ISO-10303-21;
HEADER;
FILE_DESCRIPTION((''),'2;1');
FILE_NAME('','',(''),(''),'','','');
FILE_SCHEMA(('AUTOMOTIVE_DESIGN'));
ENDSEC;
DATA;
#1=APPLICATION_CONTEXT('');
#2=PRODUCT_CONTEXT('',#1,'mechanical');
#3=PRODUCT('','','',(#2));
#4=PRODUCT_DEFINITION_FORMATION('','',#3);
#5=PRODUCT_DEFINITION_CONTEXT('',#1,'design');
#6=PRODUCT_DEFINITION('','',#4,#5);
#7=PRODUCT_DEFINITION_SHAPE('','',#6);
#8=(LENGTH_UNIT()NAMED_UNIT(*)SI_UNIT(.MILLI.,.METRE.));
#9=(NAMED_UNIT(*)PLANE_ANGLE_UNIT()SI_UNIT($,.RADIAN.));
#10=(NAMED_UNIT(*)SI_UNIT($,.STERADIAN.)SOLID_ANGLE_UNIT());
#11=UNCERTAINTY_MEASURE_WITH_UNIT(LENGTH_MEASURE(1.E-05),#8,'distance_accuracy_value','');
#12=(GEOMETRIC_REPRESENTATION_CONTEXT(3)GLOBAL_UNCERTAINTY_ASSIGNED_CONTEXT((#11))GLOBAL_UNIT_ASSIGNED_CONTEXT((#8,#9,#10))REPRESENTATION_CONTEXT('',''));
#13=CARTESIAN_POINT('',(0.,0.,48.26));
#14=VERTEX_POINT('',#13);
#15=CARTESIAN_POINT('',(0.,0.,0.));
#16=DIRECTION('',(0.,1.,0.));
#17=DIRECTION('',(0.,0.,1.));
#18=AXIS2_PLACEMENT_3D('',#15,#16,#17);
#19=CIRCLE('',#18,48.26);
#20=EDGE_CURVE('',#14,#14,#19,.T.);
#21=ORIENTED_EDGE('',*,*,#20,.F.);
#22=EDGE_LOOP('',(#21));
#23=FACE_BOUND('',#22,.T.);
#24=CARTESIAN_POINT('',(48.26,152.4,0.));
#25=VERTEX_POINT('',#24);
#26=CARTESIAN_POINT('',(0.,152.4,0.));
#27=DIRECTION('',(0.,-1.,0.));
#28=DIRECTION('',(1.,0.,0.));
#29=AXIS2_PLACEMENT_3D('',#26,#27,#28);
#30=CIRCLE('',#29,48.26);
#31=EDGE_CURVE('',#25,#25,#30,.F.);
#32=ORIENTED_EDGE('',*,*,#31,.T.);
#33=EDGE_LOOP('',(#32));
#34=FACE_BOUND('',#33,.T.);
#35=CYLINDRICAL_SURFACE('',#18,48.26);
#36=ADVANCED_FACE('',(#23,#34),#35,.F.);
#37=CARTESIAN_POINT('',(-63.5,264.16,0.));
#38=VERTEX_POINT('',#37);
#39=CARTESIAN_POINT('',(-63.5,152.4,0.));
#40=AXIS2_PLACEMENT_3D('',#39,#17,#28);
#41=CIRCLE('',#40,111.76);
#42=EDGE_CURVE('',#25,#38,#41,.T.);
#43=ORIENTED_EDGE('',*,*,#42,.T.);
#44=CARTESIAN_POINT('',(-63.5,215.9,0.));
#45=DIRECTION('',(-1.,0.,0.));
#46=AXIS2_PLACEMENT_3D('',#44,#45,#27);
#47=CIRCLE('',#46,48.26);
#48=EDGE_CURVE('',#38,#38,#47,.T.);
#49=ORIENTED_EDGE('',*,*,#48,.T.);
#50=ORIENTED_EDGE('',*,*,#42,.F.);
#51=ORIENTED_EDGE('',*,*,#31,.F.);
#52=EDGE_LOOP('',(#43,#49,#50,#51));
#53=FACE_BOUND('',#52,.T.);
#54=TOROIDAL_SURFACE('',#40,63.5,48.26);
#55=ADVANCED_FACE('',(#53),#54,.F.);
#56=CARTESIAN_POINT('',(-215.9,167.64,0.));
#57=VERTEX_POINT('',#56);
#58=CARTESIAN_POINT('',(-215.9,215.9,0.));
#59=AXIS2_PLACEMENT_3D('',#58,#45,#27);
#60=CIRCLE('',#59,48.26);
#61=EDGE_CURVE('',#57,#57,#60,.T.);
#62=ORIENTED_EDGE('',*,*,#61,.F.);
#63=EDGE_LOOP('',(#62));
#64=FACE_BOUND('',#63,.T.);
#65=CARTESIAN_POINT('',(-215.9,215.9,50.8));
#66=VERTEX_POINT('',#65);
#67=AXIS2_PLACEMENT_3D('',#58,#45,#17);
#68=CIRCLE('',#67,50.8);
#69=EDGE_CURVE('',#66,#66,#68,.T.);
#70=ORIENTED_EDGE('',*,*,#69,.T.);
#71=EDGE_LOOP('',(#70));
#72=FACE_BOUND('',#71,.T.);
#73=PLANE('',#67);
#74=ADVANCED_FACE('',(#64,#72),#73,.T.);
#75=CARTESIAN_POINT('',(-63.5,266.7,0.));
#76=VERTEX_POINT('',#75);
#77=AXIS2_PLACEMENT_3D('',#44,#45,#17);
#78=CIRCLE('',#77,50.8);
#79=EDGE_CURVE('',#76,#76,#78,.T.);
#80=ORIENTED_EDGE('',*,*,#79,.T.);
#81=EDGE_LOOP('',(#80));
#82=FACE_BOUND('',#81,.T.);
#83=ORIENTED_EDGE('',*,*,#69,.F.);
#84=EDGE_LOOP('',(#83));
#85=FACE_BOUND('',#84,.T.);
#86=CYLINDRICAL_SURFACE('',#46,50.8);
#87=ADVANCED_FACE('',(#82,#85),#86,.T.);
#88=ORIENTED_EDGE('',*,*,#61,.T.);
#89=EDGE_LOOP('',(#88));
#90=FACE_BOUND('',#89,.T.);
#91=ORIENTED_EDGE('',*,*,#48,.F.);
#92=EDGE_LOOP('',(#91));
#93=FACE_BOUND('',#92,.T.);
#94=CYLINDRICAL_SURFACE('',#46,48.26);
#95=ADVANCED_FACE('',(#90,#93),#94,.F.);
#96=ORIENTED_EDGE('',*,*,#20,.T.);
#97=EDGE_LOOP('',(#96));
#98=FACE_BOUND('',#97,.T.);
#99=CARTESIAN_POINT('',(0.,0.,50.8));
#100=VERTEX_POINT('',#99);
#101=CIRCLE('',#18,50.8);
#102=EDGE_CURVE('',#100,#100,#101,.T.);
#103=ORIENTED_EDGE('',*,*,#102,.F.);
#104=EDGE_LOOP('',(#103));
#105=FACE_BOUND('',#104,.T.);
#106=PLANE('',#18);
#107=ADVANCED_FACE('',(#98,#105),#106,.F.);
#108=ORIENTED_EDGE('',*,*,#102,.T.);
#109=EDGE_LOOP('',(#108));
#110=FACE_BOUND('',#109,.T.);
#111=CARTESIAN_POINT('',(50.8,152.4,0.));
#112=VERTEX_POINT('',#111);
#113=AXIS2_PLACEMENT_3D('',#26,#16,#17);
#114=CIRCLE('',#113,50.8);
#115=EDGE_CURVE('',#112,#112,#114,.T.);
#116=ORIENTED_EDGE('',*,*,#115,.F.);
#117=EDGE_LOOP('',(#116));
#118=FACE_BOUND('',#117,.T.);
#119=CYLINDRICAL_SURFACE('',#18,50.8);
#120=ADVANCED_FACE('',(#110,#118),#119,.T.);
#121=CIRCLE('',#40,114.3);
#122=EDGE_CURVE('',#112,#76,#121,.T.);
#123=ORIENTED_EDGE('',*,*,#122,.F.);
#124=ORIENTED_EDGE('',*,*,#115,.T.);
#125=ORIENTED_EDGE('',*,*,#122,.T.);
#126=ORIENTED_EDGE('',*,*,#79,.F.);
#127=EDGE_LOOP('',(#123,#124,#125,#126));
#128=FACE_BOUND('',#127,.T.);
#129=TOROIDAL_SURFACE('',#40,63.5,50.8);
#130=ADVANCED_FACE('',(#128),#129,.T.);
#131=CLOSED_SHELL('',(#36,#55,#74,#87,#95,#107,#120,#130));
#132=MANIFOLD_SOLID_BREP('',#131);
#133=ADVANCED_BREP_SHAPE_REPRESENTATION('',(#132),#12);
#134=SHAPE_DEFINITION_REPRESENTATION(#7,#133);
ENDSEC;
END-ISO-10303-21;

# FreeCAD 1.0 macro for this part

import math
import FreeCAD as App
import Part
import Sketcher
from FreeCAD import Vector
Q = App.Units.Quantity


def faces_at(feature, points):
    """Names of the faces that lie closest to the given points."""
    faces = feature.Shape.Faces
    near = lambda p: min(range(len(faces)), key=lambda i: faces[i].distToShape(Part.Vertex(*p))[0])
    return sorted({f"Face{near(p) + 1}" for p in points})

doc = App.newDocument("Part")
body = doc.addObject("PartDesign::Body", "Body")

sketch1 = doc.addObject("Sketcher::SketchObject", "Sketch")
body.addObject(sketch1)
sketch1.AttachmentSupport = (doc.XZ_Plane, [""])
sketch1.MapMode = "FlatFace"
sketch1.addGeometry(Part.Circle(Vector(0, 0, 0), Vector(0, 0, 1), 51), False)
sketch1.addConstraint([
    Sketcher.Constraint("Coincident", 0, 3, -1, 1),
    Sketcher.Constraint("Diameter", 0, Q("4 in")),
])

sketch2 = doc.addObject("Sketcher::SketchObject", "Sketch001")
body.addObject(sketch2)
sketch2.AttachmentSupport = (doc.XY_Plane, [""])
sketch2.MapMode = "FlatFace"
sketch2.addGeometry([
    Part.LineSegment(Vector(0, 0, 0), Vector(0, 152, 0)),
    Part.ArcOfCircle(Part.Circle(Vector(-64, 152, 0), Vector(0, 0, 1), 64), math.radians(0), math.radians(90)),
    Part.LineSegment(Vector(-64, 216, 0), Vector(-216, 216, 0)),
], False)
sketch2.addConstraint([
    Sketcher.Constraint("Tangent", 0, 2, 1, 1),
    Sketcher.Constraint("Tangent", 1, 2, 2, 1),
    Sketcher.Constraint("Vertical", 0),
    Sketcher.Constraint("Horizontal", 2),
    Sketcher.Constraint("Coincident", 0, 1, -1, 1),
    Sketcher.Constraint("Equal", 2, 0),
    Sketcher.Constraint("Radius", 1, Q("2.5 in")),
    Sketcher.Constraint("DistanceX", 2, 2, 2, 1, Q("6 in")),
])
doc.recompute()

additivepipe = doc.addObject("PartDesign::AdditivePipe", "AdditivePipe")
body.addObject(additivepipe)
additivepipe.Profile = sketch1
additivepipe.Spine = (sketch2, ["Edge1", "Edge2", "Edge3"])
doc.recompute()

thickness = doc.addObject("PartDesign::Thickness", "Thickness")
body.addObject(thickness)
thickness.Base = (additivepipe, faces_at(additivepipe, [(-215.9, 215.9, 0), (0, 0, 0)]))
thickness.Value = Q("0.1 in")
thickness.Reversed = True
thickness.Join = "Intersection"

doc.recompute()
